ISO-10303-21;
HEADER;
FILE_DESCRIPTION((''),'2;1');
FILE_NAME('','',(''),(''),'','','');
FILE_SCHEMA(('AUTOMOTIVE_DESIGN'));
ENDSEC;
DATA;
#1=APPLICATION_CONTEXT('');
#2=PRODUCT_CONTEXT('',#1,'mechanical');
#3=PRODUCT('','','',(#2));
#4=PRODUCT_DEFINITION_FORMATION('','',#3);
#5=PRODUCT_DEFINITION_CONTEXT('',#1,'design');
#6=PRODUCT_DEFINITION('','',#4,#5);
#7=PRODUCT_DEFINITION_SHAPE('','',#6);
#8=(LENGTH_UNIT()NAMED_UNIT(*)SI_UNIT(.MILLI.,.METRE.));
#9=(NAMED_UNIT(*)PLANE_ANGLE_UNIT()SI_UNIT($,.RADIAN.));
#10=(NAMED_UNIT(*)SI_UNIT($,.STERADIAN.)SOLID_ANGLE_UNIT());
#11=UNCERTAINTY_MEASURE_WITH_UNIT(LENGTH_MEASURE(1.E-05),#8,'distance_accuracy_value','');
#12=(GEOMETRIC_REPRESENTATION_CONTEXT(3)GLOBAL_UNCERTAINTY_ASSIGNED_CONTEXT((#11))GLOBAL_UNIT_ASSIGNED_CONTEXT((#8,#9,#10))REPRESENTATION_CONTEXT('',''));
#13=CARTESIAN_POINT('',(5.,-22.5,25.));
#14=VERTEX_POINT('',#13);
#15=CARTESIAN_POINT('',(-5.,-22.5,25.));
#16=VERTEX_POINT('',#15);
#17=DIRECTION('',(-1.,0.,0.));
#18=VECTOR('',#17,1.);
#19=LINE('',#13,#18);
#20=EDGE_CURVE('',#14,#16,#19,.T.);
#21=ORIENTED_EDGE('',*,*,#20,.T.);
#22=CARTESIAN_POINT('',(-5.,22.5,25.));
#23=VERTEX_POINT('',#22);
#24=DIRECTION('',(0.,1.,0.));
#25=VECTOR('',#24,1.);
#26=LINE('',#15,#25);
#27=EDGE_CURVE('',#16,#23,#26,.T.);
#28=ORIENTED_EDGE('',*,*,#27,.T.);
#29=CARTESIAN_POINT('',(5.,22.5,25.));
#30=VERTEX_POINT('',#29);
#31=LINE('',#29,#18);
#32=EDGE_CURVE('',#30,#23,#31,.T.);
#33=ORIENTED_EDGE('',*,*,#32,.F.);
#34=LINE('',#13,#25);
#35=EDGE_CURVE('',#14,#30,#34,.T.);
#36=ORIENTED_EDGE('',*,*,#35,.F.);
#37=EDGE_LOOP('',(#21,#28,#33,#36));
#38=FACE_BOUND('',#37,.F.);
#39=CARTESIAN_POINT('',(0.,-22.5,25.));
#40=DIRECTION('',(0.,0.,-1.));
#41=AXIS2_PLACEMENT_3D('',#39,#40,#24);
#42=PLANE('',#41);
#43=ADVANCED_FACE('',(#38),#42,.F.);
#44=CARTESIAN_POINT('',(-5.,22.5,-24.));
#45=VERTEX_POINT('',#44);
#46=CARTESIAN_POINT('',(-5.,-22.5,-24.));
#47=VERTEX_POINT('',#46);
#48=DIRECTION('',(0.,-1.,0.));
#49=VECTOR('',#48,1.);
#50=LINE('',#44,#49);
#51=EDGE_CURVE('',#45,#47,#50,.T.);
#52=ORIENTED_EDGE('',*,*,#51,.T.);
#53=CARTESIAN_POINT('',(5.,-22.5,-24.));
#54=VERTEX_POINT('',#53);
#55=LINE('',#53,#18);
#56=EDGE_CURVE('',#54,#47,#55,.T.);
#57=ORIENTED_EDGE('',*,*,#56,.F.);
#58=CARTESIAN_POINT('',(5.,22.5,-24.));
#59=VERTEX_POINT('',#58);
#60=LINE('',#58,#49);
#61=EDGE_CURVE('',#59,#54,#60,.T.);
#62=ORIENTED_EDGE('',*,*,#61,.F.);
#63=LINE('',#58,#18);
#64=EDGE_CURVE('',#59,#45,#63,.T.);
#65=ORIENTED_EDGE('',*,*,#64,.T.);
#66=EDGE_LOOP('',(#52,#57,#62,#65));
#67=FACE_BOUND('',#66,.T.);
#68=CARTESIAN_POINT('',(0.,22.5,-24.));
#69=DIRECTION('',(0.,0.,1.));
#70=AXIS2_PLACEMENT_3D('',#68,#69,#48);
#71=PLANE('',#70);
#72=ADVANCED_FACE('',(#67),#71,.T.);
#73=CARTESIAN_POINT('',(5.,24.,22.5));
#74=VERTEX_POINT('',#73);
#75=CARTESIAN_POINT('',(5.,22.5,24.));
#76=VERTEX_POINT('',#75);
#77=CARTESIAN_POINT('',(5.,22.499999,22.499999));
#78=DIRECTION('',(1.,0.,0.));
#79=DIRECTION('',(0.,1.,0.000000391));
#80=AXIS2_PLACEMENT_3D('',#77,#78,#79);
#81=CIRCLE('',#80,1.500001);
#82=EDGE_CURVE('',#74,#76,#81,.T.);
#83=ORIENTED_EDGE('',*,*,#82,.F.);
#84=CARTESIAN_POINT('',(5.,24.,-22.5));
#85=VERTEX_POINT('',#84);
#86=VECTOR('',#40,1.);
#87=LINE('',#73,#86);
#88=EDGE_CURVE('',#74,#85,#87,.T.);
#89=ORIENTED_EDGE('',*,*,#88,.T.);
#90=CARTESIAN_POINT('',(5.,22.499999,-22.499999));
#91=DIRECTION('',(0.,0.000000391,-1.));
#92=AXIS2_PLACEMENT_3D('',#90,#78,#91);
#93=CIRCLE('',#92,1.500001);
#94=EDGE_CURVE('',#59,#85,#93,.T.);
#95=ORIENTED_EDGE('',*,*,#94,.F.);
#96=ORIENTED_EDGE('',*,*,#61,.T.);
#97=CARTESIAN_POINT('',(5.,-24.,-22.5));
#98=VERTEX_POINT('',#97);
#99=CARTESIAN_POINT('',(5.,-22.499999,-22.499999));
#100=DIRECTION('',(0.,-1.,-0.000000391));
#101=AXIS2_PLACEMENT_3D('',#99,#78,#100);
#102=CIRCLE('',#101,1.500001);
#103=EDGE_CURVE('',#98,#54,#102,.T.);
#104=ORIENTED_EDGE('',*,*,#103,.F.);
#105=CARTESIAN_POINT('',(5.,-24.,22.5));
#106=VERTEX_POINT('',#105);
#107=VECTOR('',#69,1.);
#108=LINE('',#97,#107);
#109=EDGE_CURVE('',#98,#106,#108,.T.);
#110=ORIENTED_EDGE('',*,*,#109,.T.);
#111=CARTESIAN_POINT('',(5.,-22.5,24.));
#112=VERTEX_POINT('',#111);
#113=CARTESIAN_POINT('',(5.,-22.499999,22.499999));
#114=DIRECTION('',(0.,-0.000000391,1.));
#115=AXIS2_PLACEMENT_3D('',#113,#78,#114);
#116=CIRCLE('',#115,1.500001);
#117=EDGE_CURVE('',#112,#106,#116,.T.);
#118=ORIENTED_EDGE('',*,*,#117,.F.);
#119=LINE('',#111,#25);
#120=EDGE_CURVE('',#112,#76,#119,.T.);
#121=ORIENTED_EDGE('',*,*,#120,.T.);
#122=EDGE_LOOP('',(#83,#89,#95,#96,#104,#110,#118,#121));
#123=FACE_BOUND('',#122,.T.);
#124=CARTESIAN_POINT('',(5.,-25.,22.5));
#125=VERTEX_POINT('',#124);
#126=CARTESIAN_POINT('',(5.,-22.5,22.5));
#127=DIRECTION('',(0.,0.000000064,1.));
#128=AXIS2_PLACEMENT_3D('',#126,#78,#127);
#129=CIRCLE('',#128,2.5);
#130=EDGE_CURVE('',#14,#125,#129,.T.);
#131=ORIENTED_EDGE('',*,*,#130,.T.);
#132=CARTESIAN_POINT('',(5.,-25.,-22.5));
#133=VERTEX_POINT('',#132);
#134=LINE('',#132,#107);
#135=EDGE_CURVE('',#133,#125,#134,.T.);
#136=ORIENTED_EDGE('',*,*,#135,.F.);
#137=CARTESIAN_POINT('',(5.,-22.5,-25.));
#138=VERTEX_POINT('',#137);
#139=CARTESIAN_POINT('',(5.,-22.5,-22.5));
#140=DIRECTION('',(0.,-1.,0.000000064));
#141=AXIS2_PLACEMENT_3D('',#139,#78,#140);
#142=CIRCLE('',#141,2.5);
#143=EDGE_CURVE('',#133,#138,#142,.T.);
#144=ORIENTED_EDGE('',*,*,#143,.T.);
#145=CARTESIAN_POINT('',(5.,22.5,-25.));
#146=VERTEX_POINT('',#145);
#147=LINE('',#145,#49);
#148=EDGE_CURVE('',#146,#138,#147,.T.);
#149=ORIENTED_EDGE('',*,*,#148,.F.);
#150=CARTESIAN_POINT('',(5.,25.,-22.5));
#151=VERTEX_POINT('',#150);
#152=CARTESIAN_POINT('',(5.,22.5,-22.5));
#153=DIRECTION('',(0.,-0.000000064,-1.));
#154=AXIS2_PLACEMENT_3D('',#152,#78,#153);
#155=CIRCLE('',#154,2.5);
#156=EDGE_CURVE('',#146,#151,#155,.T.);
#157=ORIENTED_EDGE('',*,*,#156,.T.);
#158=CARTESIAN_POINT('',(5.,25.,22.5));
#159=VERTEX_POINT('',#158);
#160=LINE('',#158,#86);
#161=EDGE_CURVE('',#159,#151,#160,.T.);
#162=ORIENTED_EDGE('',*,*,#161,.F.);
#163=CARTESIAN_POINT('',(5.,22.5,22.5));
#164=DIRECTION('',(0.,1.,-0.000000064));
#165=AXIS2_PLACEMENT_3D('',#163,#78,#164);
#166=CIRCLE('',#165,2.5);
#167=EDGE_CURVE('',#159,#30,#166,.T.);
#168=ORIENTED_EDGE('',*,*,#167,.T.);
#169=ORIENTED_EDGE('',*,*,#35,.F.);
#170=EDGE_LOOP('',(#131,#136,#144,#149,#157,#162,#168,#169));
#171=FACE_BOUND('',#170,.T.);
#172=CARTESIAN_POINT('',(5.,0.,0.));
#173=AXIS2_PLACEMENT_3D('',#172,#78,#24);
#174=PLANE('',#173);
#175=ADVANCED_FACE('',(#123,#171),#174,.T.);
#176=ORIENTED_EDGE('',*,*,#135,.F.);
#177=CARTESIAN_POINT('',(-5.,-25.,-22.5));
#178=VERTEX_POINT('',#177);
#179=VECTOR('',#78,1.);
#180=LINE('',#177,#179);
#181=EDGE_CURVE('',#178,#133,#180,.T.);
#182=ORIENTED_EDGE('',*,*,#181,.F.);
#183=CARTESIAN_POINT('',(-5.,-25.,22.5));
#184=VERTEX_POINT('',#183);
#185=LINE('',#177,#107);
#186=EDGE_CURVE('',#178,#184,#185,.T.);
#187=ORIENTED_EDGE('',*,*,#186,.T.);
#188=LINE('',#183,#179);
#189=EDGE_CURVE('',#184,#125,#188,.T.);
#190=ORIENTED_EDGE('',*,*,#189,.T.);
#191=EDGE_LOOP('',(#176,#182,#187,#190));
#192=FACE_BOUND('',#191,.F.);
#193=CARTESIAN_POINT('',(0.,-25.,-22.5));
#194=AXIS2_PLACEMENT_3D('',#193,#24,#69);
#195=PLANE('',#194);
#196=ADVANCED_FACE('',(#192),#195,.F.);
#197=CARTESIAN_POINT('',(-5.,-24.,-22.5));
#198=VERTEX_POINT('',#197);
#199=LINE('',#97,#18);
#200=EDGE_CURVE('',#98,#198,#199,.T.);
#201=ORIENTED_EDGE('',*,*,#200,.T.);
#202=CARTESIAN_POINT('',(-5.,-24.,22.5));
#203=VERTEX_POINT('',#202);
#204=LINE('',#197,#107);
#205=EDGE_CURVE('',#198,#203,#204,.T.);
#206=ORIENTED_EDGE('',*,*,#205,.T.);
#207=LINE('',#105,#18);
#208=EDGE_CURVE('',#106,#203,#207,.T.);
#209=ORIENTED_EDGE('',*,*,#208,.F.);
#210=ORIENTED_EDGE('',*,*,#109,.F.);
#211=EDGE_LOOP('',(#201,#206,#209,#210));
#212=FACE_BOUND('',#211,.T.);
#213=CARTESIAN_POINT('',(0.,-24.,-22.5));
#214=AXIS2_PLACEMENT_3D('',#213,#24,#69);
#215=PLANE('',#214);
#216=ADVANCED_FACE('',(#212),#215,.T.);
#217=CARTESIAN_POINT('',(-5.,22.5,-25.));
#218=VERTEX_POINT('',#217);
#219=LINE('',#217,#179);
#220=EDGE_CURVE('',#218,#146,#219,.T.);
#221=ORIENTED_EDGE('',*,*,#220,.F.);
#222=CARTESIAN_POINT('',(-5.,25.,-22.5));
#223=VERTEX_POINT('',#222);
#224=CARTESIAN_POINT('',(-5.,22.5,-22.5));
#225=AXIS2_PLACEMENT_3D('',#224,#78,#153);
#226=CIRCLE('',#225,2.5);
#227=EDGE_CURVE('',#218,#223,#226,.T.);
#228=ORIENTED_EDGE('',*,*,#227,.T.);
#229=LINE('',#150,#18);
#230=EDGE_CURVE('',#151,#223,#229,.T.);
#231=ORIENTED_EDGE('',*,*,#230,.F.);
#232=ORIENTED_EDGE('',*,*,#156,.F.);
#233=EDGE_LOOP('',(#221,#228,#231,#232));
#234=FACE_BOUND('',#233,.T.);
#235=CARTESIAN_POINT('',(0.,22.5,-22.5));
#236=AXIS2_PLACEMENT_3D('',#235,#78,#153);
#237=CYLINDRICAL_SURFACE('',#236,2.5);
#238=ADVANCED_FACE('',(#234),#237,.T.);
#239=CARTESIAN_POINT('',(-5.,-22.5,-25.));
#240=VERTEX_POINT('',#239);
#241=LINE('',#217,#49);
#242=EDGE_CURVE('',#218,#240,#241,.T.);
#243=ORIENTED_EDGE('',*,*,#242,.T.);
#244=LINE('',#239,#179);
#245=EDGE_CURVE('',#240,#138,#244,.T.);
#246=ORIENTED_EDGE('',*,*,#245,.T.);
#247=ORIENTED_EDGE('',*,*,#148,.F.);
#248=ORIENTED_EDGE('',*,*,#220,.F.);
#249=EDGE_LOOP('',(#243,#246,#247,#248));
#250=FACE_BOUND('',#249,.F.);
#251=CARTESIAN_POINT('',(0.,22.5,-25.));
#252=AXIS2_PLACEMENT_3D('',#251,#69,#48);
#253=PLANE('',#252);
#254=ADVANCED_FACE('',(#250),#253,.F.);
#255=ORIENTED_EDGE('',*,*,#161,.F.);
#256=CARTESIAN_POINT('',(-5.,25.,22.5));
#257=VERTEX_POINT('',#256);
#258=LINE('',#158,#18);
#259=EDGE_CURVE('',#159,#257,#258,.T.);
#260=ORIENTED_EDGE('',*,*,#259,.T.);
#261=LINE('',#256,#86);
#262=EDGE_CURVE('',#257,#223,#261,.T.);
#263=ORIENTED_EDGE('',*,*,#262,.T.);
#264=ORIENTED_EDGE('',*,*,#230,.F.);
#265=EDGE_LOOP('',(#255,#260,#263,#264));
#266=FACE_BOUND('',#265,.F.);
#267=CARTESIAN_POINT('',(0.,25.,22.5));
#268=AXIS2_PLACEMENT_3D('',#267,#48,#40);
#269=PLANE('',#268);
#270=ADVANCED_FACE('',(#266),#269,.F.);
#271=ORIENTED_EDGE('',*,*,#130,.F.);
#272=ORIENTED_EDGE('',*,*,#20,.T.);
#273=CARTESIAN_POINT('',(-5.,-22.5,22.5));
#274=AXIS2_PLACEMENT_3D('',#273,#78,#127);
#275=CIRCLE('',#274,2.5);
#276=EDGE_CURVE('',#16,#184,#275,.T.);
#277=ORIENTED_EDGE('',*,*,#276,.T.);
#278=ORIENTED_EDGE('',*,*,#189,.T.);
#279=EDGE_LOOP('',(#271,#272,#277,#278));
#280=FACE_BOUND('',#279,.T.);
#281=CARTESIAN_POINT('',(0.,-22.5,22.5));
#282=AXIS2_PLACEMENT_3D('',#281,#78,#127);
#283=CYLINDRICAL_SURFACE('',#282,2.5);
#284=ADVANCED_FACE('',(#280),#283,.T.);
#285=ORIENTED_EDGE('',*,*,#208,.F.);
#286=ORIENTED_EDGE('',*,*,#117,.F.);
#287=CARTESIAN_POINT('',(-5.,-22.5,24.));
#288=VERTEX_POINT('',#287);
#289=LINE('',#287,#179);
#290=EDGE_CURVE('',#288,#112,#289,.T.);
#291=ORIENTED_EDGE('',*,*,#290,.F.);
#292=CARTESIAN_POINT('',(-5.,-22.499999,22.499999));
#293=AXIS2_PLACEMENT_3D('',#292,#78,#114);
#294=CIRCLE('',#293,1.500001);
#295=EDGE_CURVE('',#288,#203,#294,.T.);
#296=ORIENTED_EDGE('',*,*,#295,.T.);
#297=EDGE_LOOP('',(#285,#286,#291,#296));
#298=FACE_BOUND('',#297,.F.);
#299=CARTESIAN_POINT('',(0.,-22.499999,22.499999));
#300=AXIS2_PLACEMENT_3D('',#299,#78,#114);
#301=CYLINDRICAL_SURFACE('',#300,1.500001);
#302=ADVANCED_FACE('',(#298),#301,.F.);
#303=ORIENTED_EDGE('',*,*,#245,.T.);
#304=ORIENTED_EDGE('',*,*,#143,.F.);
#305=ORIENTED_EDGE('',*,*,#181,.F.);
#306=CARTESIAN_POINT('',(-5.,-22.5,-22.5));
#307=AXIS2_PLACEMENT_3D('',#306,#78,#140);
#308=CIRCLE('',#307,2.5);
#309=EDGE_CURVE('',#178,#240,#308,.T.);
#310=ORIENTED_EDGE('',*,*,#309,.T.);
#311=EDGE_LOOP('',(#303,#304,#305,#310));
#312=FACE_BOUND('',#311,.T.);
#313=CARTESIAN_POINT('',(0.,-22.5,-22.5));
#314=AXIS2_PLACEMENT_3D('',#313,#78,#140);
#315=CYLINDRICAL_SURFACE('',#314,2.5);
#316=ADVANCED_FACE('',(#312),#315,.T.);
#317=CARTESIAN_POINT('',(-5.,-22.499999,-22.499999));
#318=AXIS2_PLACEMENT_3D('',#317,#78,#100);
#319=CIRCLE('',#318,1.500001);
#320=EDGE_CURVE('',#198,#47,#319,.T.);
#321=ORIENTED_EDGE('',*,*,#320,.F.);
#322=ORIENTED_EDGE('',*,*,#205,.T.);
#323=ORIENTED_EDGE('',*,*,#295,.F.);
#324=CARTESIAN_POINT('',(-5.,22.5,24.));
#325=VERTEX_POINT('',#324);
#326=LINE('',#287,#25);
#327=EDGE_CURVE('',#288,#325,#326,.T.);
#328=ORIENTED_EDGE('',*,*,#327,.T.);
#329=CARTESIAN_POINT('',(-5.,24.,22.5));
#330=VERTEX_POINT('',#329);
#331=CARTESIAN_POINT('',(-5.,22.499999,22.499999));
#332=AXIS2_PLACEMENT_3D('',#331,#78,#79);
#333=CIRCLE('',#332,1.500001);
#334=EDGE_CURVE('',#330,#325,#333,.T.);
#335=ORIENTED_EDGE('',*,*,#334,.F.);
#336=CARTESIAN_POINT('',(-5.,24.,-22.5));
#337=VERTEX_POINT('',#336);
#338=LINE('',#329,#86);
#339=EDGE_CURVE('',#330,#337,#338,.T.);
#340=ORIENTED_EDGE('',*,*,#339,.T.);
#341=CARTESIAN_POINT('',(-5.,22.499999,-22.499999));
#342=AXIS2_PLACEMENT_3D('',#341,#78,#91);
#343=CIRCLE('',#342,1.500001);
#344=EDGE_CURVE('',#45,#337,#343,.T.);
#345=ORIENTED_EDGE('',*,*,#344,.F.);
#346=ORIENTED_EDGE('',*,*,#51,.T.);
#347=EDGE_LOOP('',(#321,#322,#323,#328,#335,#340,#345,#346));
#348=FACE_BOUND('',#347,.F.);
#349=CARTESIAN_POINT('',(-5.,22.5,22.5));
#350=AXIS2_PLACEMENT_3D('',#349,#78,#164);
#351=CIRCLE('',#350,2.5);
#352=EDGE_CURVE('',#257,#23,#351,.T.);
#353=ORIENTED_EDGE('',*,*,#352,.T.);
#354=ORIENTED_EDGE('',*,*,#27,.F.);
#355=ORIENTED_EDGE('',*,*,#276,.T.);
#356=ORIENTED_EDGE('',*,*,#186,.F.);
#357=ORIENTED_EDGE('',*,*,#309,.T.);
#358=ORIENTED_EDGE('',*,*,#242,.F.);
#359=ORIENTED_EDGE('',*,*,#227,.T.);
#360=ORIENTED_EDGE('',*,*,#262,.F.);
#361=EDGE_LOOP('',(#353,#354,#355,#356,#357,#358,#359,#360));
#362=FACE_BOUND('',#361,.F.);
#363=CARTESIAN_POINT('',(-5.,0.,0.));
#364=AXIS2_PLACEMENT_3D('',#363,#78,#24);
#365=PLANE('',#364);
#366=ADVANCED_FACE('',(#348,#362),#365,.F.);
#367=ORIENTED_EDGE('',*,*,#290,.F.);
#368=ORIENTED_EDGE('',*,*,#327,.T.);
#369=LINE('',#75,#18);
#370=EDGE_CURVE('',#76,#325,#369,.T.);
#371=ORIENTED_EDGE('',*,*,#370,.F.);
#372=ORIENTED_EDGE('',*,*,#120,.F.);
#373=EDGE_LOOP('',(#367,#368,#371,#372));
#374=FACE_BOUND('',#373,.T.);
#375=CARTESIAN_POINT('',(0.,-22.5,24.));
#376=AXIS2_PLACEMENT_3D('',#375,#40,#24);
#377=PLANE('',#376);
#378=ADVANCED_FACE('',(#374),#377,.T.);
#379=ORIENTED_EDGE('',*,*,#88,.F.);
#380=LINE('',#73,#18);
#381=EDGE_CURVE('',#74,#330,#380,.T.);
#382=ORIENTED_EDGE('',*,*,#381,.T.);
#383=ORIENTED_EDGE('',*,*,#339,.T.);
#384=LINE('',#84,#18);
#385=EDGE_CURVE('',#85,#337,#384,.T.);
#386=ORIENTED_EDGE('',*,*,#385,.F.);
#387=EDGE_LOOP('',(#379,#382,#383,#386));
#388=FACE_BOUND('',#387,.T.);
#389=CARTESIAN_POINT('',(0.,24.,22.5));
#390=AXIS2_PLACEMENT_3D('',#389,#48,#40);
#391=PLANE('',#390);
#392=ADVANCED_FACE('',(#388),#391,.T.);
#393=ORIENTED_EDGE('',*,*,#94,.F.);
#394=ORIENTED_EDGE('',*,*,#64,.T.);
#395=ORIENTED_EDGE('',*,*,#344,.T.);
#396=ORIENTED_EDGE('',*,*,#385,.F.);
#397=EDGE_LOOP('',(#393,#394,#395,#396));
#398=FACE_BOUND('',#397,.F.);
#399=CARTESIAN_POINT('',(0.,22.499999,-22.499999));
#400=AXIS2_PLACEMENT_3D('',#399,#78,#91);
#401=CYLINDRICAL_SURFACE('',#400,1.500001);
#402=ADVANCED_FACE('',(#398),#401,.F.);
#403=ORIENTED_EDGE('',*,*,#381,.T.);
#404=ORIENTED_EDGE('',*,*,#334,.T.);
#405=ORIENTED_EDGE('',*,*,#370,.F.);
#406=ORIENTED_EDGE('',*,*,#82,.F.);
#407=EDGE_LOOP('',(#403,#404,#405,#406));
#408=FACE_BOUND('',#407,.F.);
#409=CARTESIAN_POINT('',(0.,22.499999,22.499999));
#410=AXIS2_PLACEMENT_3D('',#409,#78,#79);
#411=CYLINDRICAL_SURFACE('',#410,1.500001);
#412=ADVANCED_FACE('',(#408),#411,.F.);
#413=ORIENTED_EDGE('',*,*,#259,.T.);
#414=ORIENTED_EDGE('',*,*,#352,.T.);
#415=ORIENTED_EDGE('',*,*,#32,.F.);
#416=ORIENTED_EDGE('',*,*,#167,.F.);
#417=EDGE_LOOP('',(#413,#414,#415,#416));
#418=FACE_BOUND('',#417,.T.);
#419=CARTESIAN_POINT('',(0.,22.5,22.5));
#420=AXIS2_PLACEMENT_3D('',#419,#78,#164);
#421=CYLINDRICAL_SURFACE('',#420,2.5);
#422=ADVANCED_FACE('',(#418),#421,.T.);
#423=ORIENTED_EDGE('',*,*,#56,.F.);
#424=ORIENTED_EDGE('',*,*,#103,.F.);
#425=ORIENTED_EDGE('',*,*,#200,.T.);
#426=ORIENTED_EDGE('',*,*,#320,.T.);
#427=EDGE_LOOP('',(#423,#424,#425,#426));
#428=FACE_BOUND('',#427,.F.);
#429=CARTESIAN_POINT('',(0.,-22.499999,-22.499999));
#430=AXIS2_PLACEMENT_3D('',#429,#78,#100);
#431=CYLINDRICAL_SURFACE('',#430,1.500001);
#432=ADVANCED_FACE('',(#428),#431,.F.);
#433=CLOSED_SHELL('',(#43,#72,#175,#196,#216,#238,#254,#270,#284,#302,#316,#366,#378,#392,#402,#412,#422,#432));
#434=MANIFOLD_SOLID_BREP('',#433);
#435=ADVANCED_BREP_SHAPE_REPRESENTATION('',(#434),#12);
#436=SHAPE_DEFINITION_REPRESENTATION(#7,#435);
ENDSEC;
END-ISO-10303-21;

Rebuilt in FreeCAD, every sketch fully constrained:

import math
import FreeCAD as App
import Part
import Sketcher

V = App.Vector
Q = App.Units.Quantity

doc = App.newDocument("Part")
body = doc.addObject("PartDesign::Body", "Body")

sketch1 = doc.addObject("Sketcher::SketchObject", "Sketch")
body.addObject(sketch1)
sketch1.AttachmentSupport = (doc.YZ_Plane, [""])
sketch1.MapMode = "FlatFace"
sketch1.addGeometry([
    Part.ArcOfCircle(Part.Circle(V(-22.5, 22.5, 0), V(0, 0, 1), 2.5), math.radians(90), math.radians(180)),
    Part.LineSegment(V(-25, 22.5, 0), V(-25, -22.5, 0)),
    Part.ArcOfCircle(Part.Circle(V(-22.5, -22.5, 0), V(0, 0, 1), 2.5), math.radians(180), math.radians(270)),
    Part.LineSegment(V(-22.5, -25, 0), V(22.5, -25, 0)),
    Part.ArcOfCircle(Part.Circle(V(22.5, -22.5, 0), V(0, 0, 1), 2.5), math.radians(-90), math.radians(0)),
    Part.LineSegment(V(25, -22.5, 0), V(25, 22.5, 0)),
    Part.ArcOfCircle(Part.Circle(V(22.5, 22.5, 0), V(0, 0, 1), 2.5), math.radians(0), math.radians(90)),
    Part.LineSegment(V(22.5, 25, 0), V(-22.5, 25, 0)),
    Part.ArcOfCircle(Part.Circle(V(-22.5, 22.5, 0), V(0, 0, 1), 1.5), math.radians(90), math.radians(180)),
    Part.LineSegment(V(-22.5, 24, 0), V(22.5, 24, 0)),
    Part.ArcOfCircle(Part.Circle(V(22.5, 22.5, 0), V(0, 0, 1), 1.5), math.radians(0), math.radians(90)),
    Part.LineSegment(V(24, 22.5, 0), V(24, -22.5, 0)),
    Part.ArcOfCircle(Part.Circle(V(22.5, -22.5, 0), V(0, 0, 1), 1.5), math.radians(-90), math.radians(0)),
    Part.LineSegment(V(22.5, -24, 0), V(-22.5, -24, 0)),
    Part.ArcOfCircle(Part.Circle(V(-22.5, -22.5, 0), V(0, 0, 1), 1.5), math.radians(-180), math.radians(-90)),
    Part.LineSegment(V(-24, -22.5, 0), V(-24, 22.5, 0)),
], False)
sketch1.addConstraint([
    Sketcher.Constraint("Tangent", 0, 2, 1, 1),
    Sketcher.Constraint("Tangent", 1, 2, 2, 1),
    Sketcher.Constraint("Tangent", 2, 2, 3, 1),
    Sketcher.Constraint("Tangent", 3, 2, 4, 1),
    Sketcher.Constraint("Tangent", 4, 2, 5, 1),
    Sketcher.Constraint("Tangent", 5, 2, 6, 1),
    Sketcher.Constraint("Tangent", 6, 2, 7, 1),
    Sketcher.Constraint("Tangent", 7, 2, 0, 1),
    Sketcher.Constraint("Tangent", 8, 1, 9, 1),
    Sketcher.Constraint("Tangent", 9, 2, 10, 2),
    Sketcher.Constraint("Tangent", 10, 1, 11, 1),
    Sketcher.Constraint("Tangent", 11, 2, 12, 2),
    Sketcher.Constraint("Tangent", 12, 1, 13, 1),
    Sketcher.Constraint("Tangent", 13, 2, 14, 2),
    Sketcher.Constraint("Tangent", 14, 1, 15, 1),
    Sketcher.Constraint("Tangent", 15, 2, 8, 2),
    Sketcher.Constraint("Vertical", 1),
    Sketcher.Constraint("Horizontal", 3),
    Sketcher.Constraint("Vertical", 5),
    Sketcher.Constraint("Horizontal", 7),
    Sketcher.Constraint("Horizontal", 9),
    Sketcher.Constraint("Vertical", 11),
    Sketcher.Constraint("Horizontal", 13),
    Sketcher.Constraint("Vertical", 15),
    Sketcher.Constraint("Coincident", 8, 3, 0, 3),
    Sketcher.Constraint("Coincident", 10, 3, 6, 3),
    Sketcher.Constraint("Coincident", 12, 3, 4, 3),
    Sketcher.Constraint("Equal", 0, 2),
    Sketcher.Constraint("Equal", 2, 4),
    Sketcher.Constraint("Equal", 4, 6),
    Sketcher.Constraint("Equal", 12, 14),
    Sketcher.Constraint("Symmetric", 0, 3, 4, 3, -1, 1),
    Sketcher.Constraint("Equal", 13, 1),
    Sketcher.Constraint("Radius", 0, Q("2.5 mm")),
    Sketcher.Constraint("Radius", 8, Q("1.500001 mm")),
    Sketcher.Constraint("DistanceX", 3, 1, 3, 2, Q("45 mm")),
])
pad1 = doc.addObject("PartDesign::Pad", "Pad")
body.addObject(pad1)
pad1.Profile = sketch1
pad1.Length = 10
pad1.Midplane = True

doc.recompute()
